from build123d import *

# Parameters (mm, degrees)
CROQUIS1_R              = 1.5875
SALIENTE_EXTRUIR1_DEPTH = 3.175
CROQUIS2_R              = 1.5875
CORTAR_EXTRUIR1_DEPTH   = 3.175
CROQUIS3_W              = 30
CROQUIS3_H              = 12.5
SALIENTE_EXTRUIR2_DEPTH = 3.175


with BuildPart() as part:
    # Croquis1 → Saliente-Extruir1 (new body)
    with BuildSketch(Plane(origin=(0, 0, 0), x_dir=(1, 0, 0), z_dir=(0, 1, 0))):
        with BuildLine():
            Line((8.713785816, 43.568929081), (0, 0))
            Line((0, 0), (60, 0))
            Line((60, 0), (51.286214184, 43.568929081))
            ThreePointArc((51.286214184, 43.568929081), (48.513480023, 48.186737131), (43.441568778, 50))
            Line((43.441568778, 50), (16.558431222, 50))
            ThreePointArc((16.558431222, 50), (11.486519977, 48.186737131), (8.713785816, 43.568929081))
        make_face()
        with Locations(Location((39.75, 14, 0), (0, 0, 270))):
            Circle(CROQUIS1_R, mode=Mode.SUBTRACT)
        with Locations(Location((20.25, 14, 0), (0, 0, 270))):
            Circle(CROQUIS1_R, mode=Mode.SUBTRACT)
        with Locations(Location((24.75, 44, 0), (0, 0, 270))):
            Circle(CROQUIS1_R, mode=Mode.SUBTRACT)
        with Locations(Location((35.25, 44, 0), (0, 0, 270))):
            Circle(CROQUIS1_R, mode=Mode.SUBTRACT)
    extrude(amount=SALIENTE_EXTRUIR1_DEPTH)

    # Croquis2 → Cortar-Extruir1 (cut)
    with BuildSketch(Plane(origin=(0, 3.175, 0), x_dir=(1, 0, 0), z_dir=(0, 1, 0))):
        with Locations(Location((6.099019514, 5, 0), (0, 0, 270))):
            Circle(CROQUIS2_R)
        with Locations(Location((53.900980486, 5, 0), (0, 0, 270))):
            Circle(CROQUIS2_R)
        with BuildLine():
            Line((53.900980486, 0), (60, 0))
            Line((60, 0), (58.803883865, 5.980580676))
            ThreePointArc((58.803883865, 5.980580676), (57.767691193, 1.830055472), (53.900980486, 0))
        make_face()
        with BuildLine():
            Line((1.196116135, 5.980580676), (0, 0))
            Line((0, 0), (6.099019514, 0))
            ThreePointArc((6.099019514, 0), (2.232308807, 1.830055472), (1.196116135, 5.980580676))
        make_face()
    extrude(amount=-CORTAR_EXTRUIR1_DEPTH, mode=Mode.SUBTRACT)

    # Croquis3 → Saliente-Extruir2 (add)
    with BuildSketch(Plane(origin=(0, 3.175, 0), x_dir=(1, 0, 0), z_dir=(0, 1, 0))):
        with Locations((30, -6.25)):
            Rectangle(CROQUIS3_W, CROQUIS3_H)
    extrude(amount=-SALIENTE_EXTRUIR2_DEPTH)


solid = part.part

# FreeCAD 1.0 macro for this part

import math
import FreeCAD as App
import Part
import Sketcher


def add_polygon(sketch, points):
    """Adds a closed chain of lines whose ends are joined by coincident constraints."""
    first, n = sketch.GeometryCount, len(points)
    for a, b in zip(points, points[1:] + points[:1]):
        sketch.addGeometry(Part.LineSegment(App.Vector(*a, 0), App.Vector(*b, 0)), False)
    for i in range(n):
        sketch.addConstraint(Sketcher.Constraint("Coincident", first + i, 2, first + (i + 1) % n, 1))

doc = App.newDocument("Part")
params = doc.addObject("Spreadsheet::Sheet", "Params")
for row, (alias, value) in enumerate([
    ("sketch1_radius", "8 mm"),
    ("sketch1_width", "60 mm"),
    ("pad1_length", "3.175 mm"),
    ("sketch2_radius", "5 mm"),
    ("pocket1_length", "3.175 mm"),
    ("sketch3_width", "30 mm"),
    ("sketch3_height", "12.5 mm"),
    ("pad2_length", "3.175 mm"),
], start=1):
    params.set(f"A{row}", alias)
    params.set(f"B{row}", "=" + value)
    params.setAlias(f"B{row}", alias)

body = doc.addObject("PartDesign::Body", "Body")

sketch1 = doc.addObject("Sketcher::SketchObject", "Sketch")
body.addObject(sketch1)
sketch1.AttachmentSupport = (doc.XZ_Plane, [""])
sketch1.MapMode = "FlatFace"
sketch1.addGeometry(Part.LineSegment(App.Vector(8.7, -43.6, 0), App.Vector(0, 0, 0)), False)
sketch1.addGeometry(Part.LineSegment(App.Vector(0, 0, 0), App.Vector(60, 0, 0)), False)
sketch1.addGeometry(Part.LineSegment(App.Vector(60, 0, 0), App.Vector(51.3, -43.6, 0)), False)
sketch1.addGeometry(Part.ArcOfCircle(Part.Circle(App.Vector(43.4, -42, 0), App.Vector(0, 0, 1), 8), math.radians(-90), math.radians(-11)), False)
sketch1.addGeometry(Part.LineSegment(App.Vector(43.4, -50, 0), App.Vector(16.6, -50, 0)), False)
sketch1.addGeometry(Part.ArcOfCircle(Part.Circle(App.Vector(16.6, -42, 0), App.Vector(0, 0, 1), 8), math.radians(-169), math.radians(-90)), False)
sketch1.addGeometry(Part.Circle(App.Vector(20.2, -14, 0), App.Vector(0, 0, 1), 1.6), False)
sketch1.addGeometry(Part.Circle(App.Vector(39.8, -14, 0), App.Vector(0, 0, 1), 1.6), False)
sketch1.addGeometry(Part.Circle(App.Vector(24.8, -44, 0), App.Vector(0, 0, 1), 1.6), False)
sketch1.addGeometry(Part.Circle(App.Vector(35.2, -44, 0), App.Vector(0, 0, 1), 1.6), False)
sketch1.addConstraint(Sketcher.Constraint("Coincident", 0, 2, 1, 1))
sketch1.addConstraint(Sketcher.Constraint("Coincident", 1, 2, 2, 1))
sketch1.addConstraint(Sketcher.Constraint("Tangent", 2, 2, 3, 2))
sketch1.addConstraint(Sketcher.Constraint("Tangent", 3, 1, 4, 1))
sketch1.addConstraint(Sketcher.Constraint("Tangent", 4, 2, 5, 2))
sketch1.addConstraint(Sketcher.Constraint("Tangent", 5, 1, 0, 1))
sketch1.addConstraint(Sketcher.Constraint("Horizontal", 1))
sketch1.addConstraint(Sketcher.Constraint("Horizontal", 4))
sketch1.addConstraint(Sketcher.Constraint("Coincident", 0, 2, -1, 1))
sketch1.addConstraint(Sketcher.Constraint("Equal", 3, 5))
sketch1.addConstraint(Sketcher.Constraint("Equal", 6, 7))
sketch1.addConstraint(Sketcher.Constraint("Equal", 7, 8))
sketch1.addConstraint(Sketcher.Constraint("Equal", 8, 9))
sketch1.addConstraint(Sketcher.Constraint("Horizontal", 6, 3, 7, 3))
sketch1.addConstraint(Sketcher.Constraint("Horizontal", 8, 3, 9, 3))
sketch1.addConstraint(Sketcher.Constraint("Horizontal", 2, 2, 5, 1))
sketch1.addConstraint(Sketcher.Constraint("Radius", 3, 8.0))
sketch1.addConstraint(Sketcher.Constraint("DistanceX", 1, 1, 1, 2, 60.0))
sketch1.addConstraint(Sketcher.Constraint("Diameter", 6, 3.175))
sketch1.addConstraint(Sketcher.Constraint("DistanceY", 3, 3, -1, 1, 42.0))
sketch1.addConstraint(Sketcher.Constraint("DistanceY", 6, 3, -1, 1, 14.0))
sketch1.addConstraint(Sketcher.Constraint("DistanceY", 8, 3, -1, 1, 44.0))
sketch1.addConstraint(Sketcher.Constraint("DistanceX", 8, 3, 7, 3, 15.0))
sketch1.addConstraint(Sketcher.Constraint("DistanceX", 6, 3, 9, 3, 15.0))
sketch1.addConstraint(Sketcher.Constraint("DistanceX", 6, 3, 7, 3, 19.5))
sketch1.addConstraint(Sketcher.Constraint("DistanceX", -1, 1, 6, 3, 20.25))
sketch1.addConstraint(Sketcher.Constraint("DistanceX", 4, 2, 4, 1, 26.883138))
sketch1.setExpression("Constraints[16]", "Params.sketch1_radius")
sketch1.setExpression("Constraints[17]", "Params.sketch1_width")
pad1 = doc.addObject("PartDesign::Pad", "Pad")
body.addObject(pad1)
pad1.Profile = sketch1
pad1.setExpression("Length", "Params.pad1_length")
pad1.Reversed = True

sketch2 = doc.addObject("Sketcher::SketchObject", "Sketch001")
body.addObject(sketch2)
sketch2.AttachmentSupport = (doc.XZ_Plane, [""])
sketch2.MapMode = "FlatFace"
sketch2.AttachmentOffset = App.Placement(App.Vector(0, 0, -3.175), App.Rotation())
sketch2.addGeometry(Part.Circle(App.Vector(6.1, -5, 0), App.Vector(0, 0, 1), 1.6), False)
sketch2.addGeometry(Part.Circle(App.Vector(53.9, -5, 0), App.Vector(0, 0, 1), 1.6), False)
sketch2.addGeometry(Part.LineSegment(App.Vector(53.9, 0, 0), App.Vector(60, 0, 0)), False)
sketch2.addGeometry(Part.LineSegment(App.Vector(60, 0, 0), App.Vector(58.8, -6, 0)), False)
sketch2.addGeometry(Part.ArcOfCircle(Part.Circle(App.Vector(53.9, -5, 0), App.Vector(0, 0, 1), 5), math.radians(-11), math.radians(90)), False)
sketch2.addGeometry(Part.LineSegment(App.Vector(1.2, -6, 0), App.Vector(0, 0, 0)), False)
sketch2.addGeometry(Part.LineSegment(App.Vector(0, 0, 0), App.Vector(6.1, 0, 0)), False)
sketch2.addGeometry(Part.ArcOfCircle(Part.Circle(App.Vector(6.1, -5, 0), App.Vector(0, 0, 1), 5), math.radians(90), math.radians(191)), False)
sketch2.addConstraint(Sketcher.Constraint("Coincident", 2, 2, 3, 1))
sketch2.addConstraint(Sketcher.Constraint("Tangent", 3, 2, 4, 1))
sketch2.addConstraint(Sketcher.Constraint("Tangent", 4, 2, 2, 1))
sketch2.addConstraint(Sketcher.Constraint("Coincident", 5, 2, 6, 1))
sketch2.addConstraint(Sketcher.Constraint("Tangent", 6, 2, 7, 1))
sketch2.addConstraint(Sketcher.Constraint("Tangent", 7, 2, 5, 1))
sketch2.addConstraint(Sketcher.Constraint("Horizontal", 2))
sketch2.addConstraint(Sketcher.Constraint("Horizontal", 6))
sketch2.addConstraint(Sketcher.Constraint("Coincident", 5, 2, -1, 1))
sketch2.addConstraint(Sketcher.Constraint("Coincident", 4, 3, 1, 3))
sketch2.addConstraint(Sketcher.Constraint("Coincident", 7, 3, 0, 3))
sketch2.addConstraint(Sketcher.Constraint("Equal", 0, 1))
sketch2.addConstraint(Sketcher.Constraint("Equal", 4, 7))
sketch2.addConstraint(Sketcher.Constraint("PointOnObject", 2, 2, -1))
sketch2.addConstraint(Sketcher.Constraint("Horizontal", 3, 2, 7, 2))
sketch2.addConstraint(Sketcher.Constraint("Radius", 4, 5.0))
sketch2.addConstraint(Sketcher.Constraint("Diameter", 0, 3.175))
sketch2.addConstraint(Sketcher.Constraint("DistanceX", -1, 1, 2, 2, 60.0))
sketch2.addConstraint(Sketcher.Constraint("DistanceX", 2, 1, 2, 2, 6.09902))
sketch2.setExpression("Constraints[15]", "Params.sketch2_radius")
pocket1 = doc.addObject("PartDesign::Pocket", "Pocket")
body.addObject(pocket1)
pocket1.Profile = sketch2
pocket1.setExpression("Length", "Params.pocket1_length")
pocket1.Reversed = True

sketch3 = doc.addObject("Sketcher::SketchObject", "Sketch002")
body.addObject(sketch3)
sketch3.AttachmentSupport = (doc.XZ_Plane, [""])
sketch3.MapMode = "FlatFace"
sketch3.AttachmentOffset = App.Placement(App.Vector(0, 0, -3.175), App.Rotation())
add_polygon(sketch3, [(15, 0), (15, 12), (45, 12), (45, 0)])
sketch3.addConstraint(Sketcher.Constraint("Vertical", 0))
sketch3.addConstraint(Sketcher.Constraint("Horizontal", 1))
sketch3.addConstraint(Sketcher.Constraint("Vertical", 2))
sketch3.addConstraint(Sketcher.Constraint("Horizontal", 3))
sketch3.addConstraint(Sketcher.Constraint("PointOnObject", 2, 2, -1))
sketch3.addConstraint(Sketcher.Constraint("DistanceX", 1, 1, 1, 2, 30.0))
sketch3.addConstraint(Sketcher.Constraint("DistanceY", 0, 1, 0, 2, 12.5))
sketch3.addConstraint(Sketcher.Constraint("DistanceX", -1, 1, 0, 2, 15.0))
sketch3.setExpression("Constraints[9]", "Params.sketch3_width")
sketch3.setExpression("Constraints[10]", "Params.sketch3_height")
pad2 = doc.addObject("PartDesign::Pad", "Pad001")
body.addObject(pad2)
pad2.Profile = sketch3
pad2.setExpression("Length", "Params.pad2_length")

doc.recompute()
